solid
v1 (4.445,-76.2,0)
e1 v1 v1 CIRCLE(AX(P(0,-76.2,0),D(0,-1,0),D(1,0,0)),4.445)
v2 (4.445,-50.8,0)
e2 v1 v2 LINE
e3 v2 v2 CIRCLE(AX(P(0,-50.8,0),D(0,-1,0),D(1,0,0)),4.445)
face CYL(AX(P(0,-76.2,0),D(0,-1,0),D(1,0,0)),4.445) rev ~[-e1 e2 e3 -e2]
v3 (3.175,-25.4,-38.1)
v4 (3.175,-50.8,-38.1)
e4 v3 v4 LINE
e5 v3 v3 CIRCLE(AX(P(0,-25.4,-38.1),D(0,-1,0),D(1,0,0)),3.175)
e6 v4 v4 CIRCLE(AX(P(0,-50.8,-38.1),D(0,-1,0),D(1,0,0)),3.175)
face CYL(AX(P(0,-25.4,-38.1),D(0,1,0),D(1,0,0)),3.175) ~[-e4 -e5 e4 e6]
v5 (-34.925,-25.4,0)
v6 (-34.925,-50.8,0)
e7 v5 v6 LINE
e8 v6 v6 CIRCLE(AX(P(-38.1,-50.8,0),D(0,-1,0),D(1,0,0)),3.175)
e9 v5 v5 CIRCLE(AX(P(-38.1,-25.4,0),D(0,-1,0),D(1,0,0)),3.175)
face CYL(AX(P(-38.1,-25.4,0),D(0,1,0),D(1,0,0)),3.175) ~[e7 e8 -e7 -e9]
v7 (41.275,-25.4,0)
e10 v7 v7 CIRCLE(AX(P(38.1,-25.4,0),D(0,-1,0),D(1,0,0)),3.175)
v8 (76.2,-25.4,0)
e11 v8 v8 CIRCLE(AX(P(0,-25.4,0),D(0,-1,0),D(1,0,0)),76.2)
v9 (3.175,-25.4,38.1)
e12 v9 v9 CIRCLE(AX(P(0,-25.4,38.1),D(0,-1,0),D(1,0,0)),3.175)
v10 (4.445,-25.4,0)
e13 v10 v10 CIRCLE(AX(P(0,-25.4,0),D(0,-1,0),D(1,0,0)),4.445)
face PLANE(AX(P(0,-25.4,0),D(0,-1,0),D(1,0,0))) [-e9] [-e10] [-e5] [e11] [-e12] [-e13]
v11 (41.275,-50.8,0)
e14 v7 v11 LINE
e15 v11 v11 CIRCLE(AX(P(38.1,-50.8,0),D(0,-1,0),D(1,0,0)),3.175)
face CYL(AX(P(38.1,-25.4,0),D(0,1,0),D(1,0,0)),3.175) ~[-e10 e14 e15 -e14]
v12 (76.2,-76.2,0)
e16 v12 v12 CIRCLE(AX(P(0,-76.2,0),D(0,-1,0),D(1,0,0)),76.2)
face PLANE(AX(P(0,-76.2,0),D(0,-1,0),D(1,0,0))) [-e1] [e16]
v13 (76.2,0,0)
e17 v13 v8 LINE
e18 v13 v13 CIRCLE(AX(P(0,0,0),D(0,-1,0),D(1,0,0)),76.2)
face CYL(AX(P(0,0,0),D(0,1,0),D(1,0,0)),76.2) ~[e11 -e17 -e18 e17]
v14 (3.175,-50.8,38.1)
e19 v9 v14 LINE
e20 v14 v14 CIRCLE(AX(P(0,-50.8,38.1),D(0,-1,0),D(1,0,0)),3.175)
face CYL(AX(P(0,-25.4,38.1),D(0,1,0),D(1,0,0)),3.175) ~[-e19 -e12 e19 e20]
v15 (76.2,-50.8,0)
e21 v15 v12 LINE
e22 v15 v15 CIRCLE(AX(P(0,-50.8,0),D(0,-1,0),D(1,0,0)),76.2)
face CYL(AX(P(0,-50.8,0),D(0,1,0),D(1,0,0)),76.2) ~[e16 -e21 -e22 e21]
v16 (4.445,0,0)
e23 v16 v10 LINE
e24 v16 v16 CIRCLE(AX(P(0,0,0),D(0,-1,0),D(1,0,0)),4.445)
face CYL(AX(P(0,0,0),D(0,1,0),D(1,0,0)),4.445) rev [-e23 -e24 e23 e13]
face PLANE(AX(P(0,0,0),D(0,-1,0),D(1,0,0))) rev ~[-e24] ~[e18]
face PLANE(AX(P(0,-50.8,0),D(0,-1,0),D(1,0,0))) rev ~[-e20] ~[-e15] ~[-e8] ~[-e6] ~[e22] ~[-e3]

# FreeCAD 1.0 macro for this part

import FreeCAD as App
import Part
import Sketcher
Q = App.Units.Quantity

doc = App.newDocument("Part")
body = doc.addObject("PartDesign::Body", "Body")

# Sketch on XZ plane
sketch1 = body.newObject("Sketcher::SketchObject", "Sketch")
sketch1.AttachmentSupport = (doc.getObject("XZ_Plane"), [""])
sketch1.MapMode = "FlatFace"
sketch1.addGeometry(Part.Circle(App.Vector(0, 0, 0), App.Vector(0, 0, 1), 76.2), False)
sketch1.addConstraint([
    Sketcher.Constraint("Coincident", 0, 3, -1, 1),
    Sketcher.Constraint("Diameter", 0, Q("6 in")),
])
pad1 = body.newObject("PartDesign::Pad", "Pad")
pad1.Profile = sketch1
pad1.Length = Q("1 in")

# Sketch on XZ plane
sketch2 = body.newObject("Sketcher::SketchObject", "Sketch001")
sketch2.AttachmentSupport = (doc.getObject("XZ_Plane"), [""])
sketch2.MapMode = "FlatFace"
sketch2.addGeometry(Part.Circle(App.Vector(0, 0, 0), App.Vector(0, 0, 1), 4.445), False)
sketch2.addConstraint([
    Sketcher.Constraint("Coincident", 0, 3, -1, 1),
    Sketcher.Constraint("Diameter", 0, Q("0.35 in")),
])
pocket1 = body.newObject("PartDesign::Pocket", "Pocket")
pocket1.Profile = sketch2
pocket1.Length = Q("1 in")
pocket1.Reversed = True

# Sketch on XZ plane
sketch3 = body.newObject("Sketcher::SketchObject", "Sketch002")
sketch3.AttachmentSupport = (doc.getObject("XZ_Plane"), [""])
sketch3.MapMode = "FlatFace"
sketch3.AttachmentOffset = App.Placement(App.Vector(0, 0, 1 * 25.4), App.Rotation())
sketch3.addGeometry([
    Part.Circle(App.Vector(38.1, 0, 0), App.Vector(0, 0, 1), 3.175),
    Part.Circle(App.Vector(0, 38.1, 0), App.Vector(0, 0, 1), 3.175),
    Part.Circle(App.Vector(-38.1, 0, 0), App.Vector(0, 0, 1), 3.175),
    Part.Circle(App.Vector(0, -38.1, 0), App.Vector(0, 0, 1), 3.175),
], False)
sketch3.addConstraint([
    Sketcher.Constraint("Equal", 0, 1),
    Sketcher.Constraint("Equal", 1, 2),
    Sketcher.Constraint("Equal", 2, 3),
    Sketcher.Constraint("Symmetric", 0, 3, 2, 3, -1, 1),
    Sketcher.Constraint("Symmetric", 1, 3, 3, 3, -1, 1),
    Sketcher.Constraint("PointOnObject", 0, 3, -1),
    Sketcher.Constraint("PointOnObject", 1, 3, -2),
    Sketcher.Constraint("Diameter", 0, Q("0.25 in")),
    Sketcher.Constraint("DistanceX", 2, 3, 0, 3, Q("3 in")),
    Sketcher.Constraint("DistanceY", 3, 3, 1, 3, Q("3 in")),
])
pad2 = body.newObject("PartDesign::Pad", "Pad001")
pad2.Profile = sketch3
pad2.Length = Q("1 in")

# Sketch on XZ plane
sketch4 = body.newObject("Sketcher::SketchObject", "Sketch003")
sketch4.AttachmentSupport = (doc.getObject("XZ_Plane"), [""])
sketch4.MapMode = "FlatFace"
sketch4.AttachmentOffset = App.Placement(App.Vector(0, 0, 2 * 25.4), App.Rotation())
sketch4.addGeometry(Part.Circle(App.Vector(0, 0, 0), App.Vector(0, 0, 1), 76.2), False)
sketch4.addConstraint([
    Sketcher.Constraint("Coincident", 0, 3, -1, 1),
    Sketcher.Constraint("Diameter", 0, Q("6 in")),
])
pad3 = body.newObject("PartDesign::Pad", "Pad002")
pad3.Profile = sketch4
pad3.Length = Q("1 in")

# Sketch on XZ plane
sketch5 = body.newObject("Sketcher::SketchObject", "Sketch004")
sketch5.AttachmentSupport = (doc.getObject("XZ_Plane"), [""])
sketch5.MapMode = "FlatFace"
sketch5.AttachmentOffset = App.Placement(App.Vector(0, 0, 3 * 25.4), App.Rotation())
sketch5.addGeometry(Part.Circle(App.Vector(0, 0, 0), App.Vector(0, 0, 1), 4.445), False)
sketch5.addConstraint([
    Sketcher.Constraint("Coincident", 0, 3, -1, 1),
    Sketcher.Constraint("Diameter", 0, Q("0.35 in")),
])
pocket2 = body.newObject("PartDesign::Pocket", "Pocket001")
pocket2.Profile = sketch5
pocket2.Length = Q("1 in")

doc.recompute()
